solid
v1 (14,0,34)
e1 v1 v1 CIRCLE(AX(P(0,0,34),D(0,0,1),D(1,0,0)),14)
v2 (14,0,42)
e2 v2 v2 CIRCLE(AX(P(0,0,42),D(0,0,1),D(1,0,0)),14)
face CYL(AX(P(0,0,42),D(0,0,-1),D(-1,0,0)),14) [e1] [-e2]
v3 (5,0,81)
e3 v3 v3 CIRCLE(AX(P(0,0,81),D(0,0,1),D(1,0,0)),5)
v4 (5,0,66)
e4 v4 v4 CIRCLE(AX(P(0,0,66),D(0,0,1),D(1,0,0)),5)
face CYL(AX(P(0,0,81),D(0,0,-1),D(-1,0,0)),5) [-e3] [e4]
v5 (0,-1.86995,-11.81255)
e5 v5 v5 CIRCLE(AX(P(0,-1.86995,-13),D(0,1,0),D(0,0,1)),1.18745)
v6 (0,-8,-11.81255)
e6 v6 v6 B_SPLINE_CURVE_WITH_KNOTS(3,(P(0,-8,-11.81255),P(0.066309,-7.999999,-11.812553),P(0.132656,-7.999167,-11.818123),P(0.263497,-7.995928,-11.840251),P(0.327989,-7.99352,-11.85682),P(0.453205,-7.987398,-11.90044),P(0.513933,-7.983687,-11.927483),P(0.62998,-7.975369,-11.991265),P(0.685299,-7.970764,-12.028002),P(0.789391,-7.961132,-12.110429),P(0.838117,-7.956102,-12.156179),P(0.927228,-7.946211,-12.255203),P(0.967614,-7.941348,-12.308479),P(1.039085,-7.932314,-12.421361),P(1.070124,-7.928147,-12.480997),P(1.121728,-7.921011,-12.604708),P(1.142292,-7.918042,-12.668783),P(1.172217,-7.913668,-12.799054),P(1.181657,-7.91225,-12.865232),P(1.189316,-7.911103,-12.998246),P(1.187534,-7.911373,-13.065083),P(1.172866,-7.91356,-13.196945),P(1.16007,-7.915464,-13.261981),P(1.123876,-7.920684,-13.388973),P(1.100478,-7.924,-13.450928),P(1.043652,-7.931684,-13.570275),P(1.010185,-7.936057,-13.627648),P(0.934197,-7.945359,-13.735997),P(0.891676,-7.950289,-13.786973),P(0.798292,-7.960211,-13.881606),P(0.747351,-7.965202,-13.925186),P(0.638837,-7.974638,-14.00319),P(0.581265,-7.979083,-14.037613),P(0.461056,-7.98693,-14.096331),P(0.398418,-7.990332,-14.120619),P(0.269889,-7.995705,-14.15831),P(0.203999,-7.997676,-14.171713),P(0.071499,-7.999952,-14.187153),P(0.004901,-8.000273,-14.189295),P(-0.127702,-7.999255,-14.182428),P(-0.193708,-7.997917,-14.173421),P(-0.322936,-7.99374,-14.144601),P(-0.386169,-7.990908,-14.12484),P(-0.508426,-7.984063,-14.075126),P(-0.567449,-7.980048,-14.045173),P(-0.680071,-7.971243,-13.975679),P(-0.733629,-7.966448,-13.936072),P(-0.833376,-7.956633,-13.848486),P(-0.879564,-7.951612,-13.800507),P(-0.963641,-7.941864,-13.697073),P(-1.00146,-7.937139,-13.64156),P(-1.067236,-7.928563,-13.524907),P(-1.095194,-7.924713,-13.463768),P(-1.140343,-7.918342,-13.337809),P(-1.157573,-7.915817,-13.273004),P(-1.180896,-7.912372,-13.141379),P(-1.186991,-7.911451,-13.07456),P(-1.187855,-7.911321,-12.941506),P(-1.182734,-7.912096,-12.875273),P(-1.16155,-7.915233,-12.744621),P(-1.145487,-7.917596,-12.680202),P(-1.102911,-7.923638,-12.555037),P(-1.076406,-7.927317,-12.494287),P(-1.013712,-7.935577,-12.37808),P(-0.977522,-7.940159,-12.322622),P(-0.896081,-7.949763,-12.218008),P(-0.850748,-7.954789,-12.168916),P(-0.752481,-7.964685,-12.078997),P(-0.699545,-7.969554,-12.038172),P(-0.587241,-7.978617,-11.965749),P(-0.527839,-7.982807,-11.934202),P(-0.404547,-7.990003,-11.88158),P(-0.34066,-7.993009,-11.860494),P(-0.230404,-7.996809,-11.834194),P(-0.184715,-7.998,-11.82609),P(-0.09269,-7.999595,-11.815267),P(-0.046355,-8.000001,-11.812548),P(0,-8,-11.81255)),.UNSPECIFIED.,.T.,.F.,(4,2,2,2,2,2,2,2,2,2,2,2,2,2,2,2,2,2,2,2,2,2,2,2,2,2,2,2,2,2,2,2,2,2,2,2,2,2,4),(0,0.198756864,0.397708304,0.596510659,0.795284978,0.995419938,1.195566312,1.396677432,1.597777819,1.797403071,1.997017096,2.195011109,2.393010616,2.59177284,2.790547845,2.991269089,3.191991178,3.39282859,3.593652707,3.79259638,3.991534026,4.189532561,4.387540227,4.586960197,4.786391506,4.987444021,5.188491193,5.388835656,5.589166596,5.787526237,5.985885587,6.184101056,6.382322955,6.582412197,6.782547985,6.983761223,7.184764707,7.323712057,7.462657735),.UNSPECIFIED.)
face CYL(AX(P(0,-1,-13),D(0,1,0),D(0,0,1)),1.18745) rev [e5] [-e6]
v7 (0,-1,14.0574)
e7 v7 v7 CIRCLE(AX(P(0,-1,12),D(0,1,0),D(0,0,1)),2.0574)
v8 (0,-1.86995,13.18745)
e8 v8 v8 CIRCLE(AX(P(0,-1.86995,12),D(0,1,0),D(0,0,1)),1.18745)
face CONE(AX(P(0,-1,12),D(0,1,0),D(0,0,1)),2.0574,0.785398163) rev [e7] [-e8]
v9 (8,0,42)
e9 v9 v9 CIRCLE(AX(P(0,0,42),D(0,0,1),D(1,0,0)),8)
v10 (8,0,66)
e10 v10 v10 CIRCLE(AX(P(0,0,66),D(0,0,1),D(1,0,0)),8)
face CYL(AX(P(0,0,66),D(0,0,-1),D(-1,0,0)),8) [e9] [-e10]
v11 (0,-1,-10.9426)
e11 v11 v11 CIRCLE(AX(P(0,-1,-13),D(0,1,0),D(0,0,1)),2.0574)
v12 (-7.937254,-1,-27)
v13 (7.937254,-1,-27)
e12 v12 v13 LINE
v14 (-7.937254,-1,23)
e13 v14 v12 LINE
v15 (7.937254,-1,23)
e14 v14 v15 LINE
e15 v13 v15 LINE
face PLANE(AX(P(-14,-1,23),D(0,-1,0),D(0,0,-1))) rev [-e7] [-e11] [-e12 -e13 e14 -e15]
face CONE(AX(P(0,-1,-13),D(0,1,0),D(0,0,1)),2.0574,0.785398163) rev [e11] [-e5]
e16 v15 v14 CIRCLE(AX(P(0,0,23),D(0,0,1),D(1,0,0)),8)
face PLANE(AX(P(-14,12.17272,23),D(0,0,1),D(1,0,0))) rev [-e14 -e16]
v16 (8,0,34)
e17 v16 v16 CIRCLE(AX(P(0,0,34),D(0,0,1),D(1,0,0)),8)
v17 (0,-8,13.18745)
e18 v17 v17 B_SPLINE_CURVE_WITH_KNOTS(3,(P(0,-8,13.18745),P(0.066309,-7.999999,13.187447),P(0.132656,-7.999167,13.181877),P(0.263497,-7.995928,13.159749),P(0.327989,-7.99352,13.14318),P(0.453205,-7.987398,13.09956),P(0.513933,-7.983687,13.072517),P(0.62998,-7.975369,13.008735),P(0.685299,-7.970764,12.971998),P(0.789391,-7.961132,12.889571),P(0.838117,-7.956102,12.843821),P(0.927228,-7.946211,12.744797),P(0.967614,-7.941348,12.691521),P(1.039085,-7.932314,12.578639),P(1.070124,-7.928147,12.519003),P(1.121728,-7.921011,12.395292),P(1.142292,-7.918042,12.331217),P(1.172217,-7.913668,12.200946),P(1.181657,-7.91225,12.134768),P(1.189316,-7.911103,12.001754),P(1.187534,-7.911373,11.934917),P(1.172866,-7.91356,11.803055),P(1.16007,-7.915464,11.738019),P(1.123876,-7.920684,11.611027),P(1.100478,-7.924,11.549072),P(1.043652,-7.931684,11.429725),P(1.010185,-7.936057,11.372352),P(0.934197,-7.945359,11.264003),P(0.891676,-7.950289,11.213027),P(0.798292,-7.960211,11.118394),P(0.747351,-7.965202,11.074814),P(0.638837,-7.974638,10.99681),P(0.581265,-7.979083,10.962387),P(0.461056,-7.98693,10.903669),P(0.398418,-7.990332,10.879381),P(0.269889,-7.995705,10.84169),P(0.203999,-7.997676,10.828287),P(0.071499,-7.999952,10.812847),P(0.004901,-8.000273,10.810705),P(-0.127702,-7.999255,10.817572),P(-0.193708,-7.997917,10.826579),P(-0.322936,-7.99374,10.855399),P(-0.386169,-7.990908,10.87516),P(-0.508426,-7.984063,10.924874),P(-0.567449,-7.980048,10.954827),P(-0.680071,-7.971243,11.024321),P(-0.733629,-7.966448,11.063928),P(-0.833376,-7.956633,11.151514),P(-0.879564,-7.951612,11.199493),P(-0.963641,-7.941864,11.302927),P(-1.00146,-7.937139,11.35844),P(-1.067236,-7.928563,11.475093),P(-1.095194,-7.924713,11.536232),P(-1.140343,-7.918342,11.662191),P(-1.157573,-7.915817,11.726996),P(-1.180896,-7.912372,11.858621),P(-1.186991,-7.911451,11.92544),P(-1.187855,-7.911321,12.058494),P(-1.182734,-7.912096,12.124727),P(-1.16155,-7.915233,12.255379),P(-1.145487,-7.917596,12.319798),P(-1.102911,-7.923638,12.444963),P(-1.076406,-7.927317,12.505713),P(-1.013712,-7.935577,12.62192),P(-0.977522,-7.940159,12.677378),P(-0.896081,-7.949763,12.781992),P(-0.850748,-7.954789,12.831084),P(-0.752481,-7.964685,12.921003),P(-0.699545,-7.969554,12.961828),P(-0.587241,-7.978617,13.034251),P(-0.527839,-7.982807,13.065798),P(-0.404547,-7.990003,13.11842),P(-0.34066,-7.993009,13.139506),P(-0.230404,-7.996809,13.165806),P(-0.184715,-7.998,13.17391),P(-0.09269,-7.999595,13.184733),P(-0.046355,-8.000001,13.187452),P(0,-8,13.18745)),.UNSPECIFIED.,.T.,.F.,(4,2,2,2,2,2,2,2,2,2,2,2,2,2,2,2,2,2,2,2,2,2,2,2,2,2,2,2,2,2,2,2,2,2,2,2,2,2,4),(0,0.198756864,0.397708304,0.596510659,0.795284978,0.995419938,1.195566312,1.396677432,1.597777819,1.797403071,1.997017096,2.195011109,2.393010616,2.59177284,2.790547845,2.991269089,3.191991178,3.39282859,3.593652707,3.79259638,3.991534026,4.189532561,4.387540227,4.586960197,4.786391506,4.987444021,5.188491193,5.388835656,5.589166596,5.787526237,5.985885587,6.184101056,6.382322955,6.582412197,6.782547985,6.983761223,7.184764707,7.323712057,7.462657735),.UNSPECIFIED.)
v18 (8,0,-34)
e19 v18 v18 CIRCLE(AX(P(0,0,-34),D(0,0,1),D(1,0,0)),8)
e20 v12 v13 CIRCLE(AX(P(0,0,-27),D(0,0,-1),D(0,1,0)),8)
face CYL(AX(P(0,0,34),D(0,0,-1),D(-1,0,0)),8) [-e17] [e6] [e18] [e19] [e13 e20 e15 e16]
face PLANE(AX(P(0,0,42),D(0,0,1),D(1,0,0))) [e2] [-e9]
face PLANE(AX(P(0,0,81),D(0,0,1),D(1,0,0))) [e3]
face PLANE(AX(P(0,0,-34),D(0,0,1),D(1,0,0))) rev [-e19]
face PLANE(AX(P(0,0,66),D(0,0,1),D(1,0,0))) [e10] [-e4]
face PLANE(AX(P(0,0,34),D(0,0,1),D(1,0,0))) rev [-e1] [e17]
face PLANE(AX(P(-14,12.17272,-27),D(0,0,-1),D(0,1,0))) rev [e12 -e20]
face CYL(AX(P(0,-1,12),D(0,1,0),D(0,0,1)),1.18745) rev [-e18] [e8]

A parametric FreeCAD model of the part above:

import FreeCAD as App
import Part
import Sketcher

doc = App.newDocument("Part")
params = doc.addObject("Spreadsheet::Sheet", "Params")
for row, (alias, value) in enumerate([
    ("sketch1_diameter", "16 mm"),
    ("pad1_length", "68 mm"),
    ("sketch2_diameter", "28 mm"),
    ("pad2_length", "8 mm"),
    ("sketch3_diameter", "16 mm"),
    ("pad3_length", "24 mm"),
    ("sketch4_diameter", "10 mm"),
    ("pad4_length", "15 mm"),
    ("sketch5_height", "50 mm"),
    ("hole_diameter", "2.3749 mm"),
    ("hole_depth", "10.35 mm"),
    ("hole_csink_diameter", "4.1148 mm"),
], start=1):
    params.set(f"A{row}", alias)
    params.set(f"B{row}", "=" + value)
    params.setAlias(f"B{row}", alias)

body = doc.addObject("PartDesign::Body", "Body")

# Sketch on XY plane
sketch1 = body.newObject("Sketcher::SketchObject", "Sketch")
sketch1.AttachmentSupport = (doc.getObject("XY_Plane"), [""])
sketch1.MapMode = "FlatFace"
sketch1.addGeometry(Part.Circle(App.Vector(0, 0, 0), App.Vector(0, 0, 1), 8), False)
sketch1.addConstraint([
    Sketcher.Constraint("Coincident", 0, 3, -1, 1),
    Sketcher.Constraint("Diameter", 0, 16.0),
])
sketch1.setExpression("Constraints[1]", "Params.sketch1_diameter")
pad1 = body.newObject("PartDesign::Pad", "Pad")
pad1.Profile = sketch1
pad1.setExpression("Length", "Params.pad1_length")
pad1.Midplane = True

# Sketch on XY plane
sketch2 = body.newObject("Sketcher::SketchObject", "Sketch001")
sketch2.AttachmentSupport = (doc.getObject("XY_Plane"), [""])
sketch2.MapMode = "FlatFace"
sketch2.AttachmentOffset = App.Placement(App.Vector(0, 0, 34), App.Rotation())
sketch2.addGeometry(Part.Circle(App.Vector(0, 0, 0), App.Vector(0, 0, 1), 14), False)
sketch2.addConstraint([
    Sketcher.Constraint("Coincident", 0, 3, -1, 1),
    Sketcher.Constraint("Diameter", 0, 28.0),
])
sketch2.setExpression("Constraints[1]", "Params.sketch2_diameter")
pad2 = body.newObject("PartDesign::Pad", "Pad001")
pad2.Profile = sketch2
pad2.setExpression("Length", "Params.pad2_length")

# Sketch on XY plane
sketch3 = body.newObject("Sketcher::SketchObject", "Sketch002")
sketch3.AttachmentSupport = (doc.getObject("XY_Plane"), [""])
sketch3.MapMode = "FlatFace"
sketch3.AttachmentOffset = App.Placement(App.Vector(0, 0, 42), App.Rotation())
sketch3.addGeometry(Part.Circle(App.Vector(0, 0, 0), App.Vector(0, 0, 1), 8), False)
sketch3.addConstraint([
    Sketcher.Constraint("Coincident", 0, 3, -1, 1),
    Sketcher.Constraint("Diameter", 0, 16.0),
])
sketch3.setExpression("Constraints[1]", "Params.sketch3_diameter")
pad3 = body.newObject("PartDesign::Pad", "Pad002")
pad3.Profile = sketch3
pad3.setExpression("Length", "Params.pad3_length")

# Sketch on XY plane
sketch4 = body.newObject("Sketcher::SketchObject", "Sketch003")
sketch4.AttachmentSupport = (doc.getObject("XY_Plane"), [""])
sketch4.MapMode = "FlatFace"
sketch4.AttachmentOffset = App.Placement(App.Vector(0, 0, 66), App.Rotation())
sketch4.addGeometry(Part.Circle(App.Vector(0, 0, 0), App.Vector(0, 0, 1), 5), False)
sketch4.addConstraint([
    Sketcher.Constraint("Coincident", 0, 3, -1, 1),
    Sketcher.Constraint("Diameter", 0, 10.0),
])
sketch4.setExpression("Constraints[1]", "Params.sketch4_diameter")
pad4 = body.newObject("PartDesign::Pad", "Pad003")
pad4.Profile = sketch4
pad4.setExpression("Length", "Params.pad4_length")

# Sketch on YZ plane
sketch5 = body.newObject("Sketcher::SketchObject", "Sketch004")
sketch5.AttachmentSupport = (doc.getObject("YZ_Plane"), [""])
sketch5.MapMode = "FlatFace"
sketch5.addGeometry([
    Part.LineSegment(App.Vector(12, 23, 0), App.Vector(-1, 23, 0)),
    Part.LineSegment(App.Vector(-1, 23, 0), App.Vector(-1, -27, 0)),
    Part.LineSegment(App.Vector(-1, -27, 0), App.Vector(12, -27, 0)),
    Part.LineSegment(App.Vector(12, -27, 0), App.Vector(12, 23, 0)),
], False)
sketch5.addConstraint([
    Sketcher.Constraint("Coincident", 0, 2, 1, 1),
    Sketcher.Constraint("Coincident", 1, 2, 2, 1),
    Sketcher.Constraint("Coincident", 2, 2, 3, 1),
    Sketcher.Constraint("Coincident", 3, 2, 0, 1),
    Sketcher.Constraint("Horizontal", 0),
    Sketcher.Constraint("Vertical", 1),
    Sketcher.Constraint("Horizontal", 2),
    Sketcher.Constraint("Vertical", 3),
    Sketcher.Constraint("DistanceY", 1, 2, 1, 1, 50.0),
    Sketcher.Constraint("DistanceX", 0, 2, -1, 1, 1.0),
    Sketcher.Constraint("DistanceY", -1, 1, 0, 2, 23.0),
    Sketcher.Constraint("DistanceX", 0, 2, 0, 1, 13.17272),
])
sketch5.setExpression("Constraints[8]", "Params.sketch5_height")
pocket1 = body.newObject("PartDesign::Pocket", "Pocket")
pocket1.Profile = sketch5
pocket1.Type = "ThroughAll"
pocket1.Midplane = True

# Sketch on XZ plane
sketch6 = body.newObject("Sketcher::SketchObject", "Sketch005")
sketch6.AttachmentSupport = (doc.getObject("XZ_Plane"), [""])
sketch6.MapMode = "FlatFace"
sketch6.AttachmentOffset = App.Placement(App.Vector(0, 0, 1), App.Rotation())
sketch6.addGeometry([
    Part.Circle(App.Vector(0, 12, 0), App.Vector(0, 0, 1), 1.2),
    Part.Circle(App.Vector(0, -13, 0), App.Vector(0, 0, 1), 1.2),
], False)
sketch6.addConstraint([
    Sketcher.Constraint("Equal", 0, 1),
    Sketcher.Constraint("PointOnObject", 0, 3, -2),
    Sketcher.Constraint("PointOnObject", 1, 3, -2),
    Sketcher.Constraint("DistanceY", -1, 1, 0, 3, 12.0),
    Sketcher.Constraint("DistanceY", 1, 3, -1, 1, 13.0),
    Sketcher.Constraint("Diameter", 0, 2.3749),
])
doc.recompute()
hole = body.newObject("PartDesign::Hole", "Hole")
hole.Profile = sketch6
hole.ThreadType = "None"
hole.setExpression("Diameter", "Params.hole_diameter")
hole.DepthType = "Dimension"
hole.setExpression("Depth", "Params.hole_depth")
hole.DrillPoint = "Angled"
hole.DrillPointAngle = 118
hole.HoleCutType = "Countersink"
hole.setExpression("HoleCutDiameter", "Params.hole_csink_diameter")
hole.HoleCutCountersinkAngle = 90
hole.Reversed = True

doc.recompute()
